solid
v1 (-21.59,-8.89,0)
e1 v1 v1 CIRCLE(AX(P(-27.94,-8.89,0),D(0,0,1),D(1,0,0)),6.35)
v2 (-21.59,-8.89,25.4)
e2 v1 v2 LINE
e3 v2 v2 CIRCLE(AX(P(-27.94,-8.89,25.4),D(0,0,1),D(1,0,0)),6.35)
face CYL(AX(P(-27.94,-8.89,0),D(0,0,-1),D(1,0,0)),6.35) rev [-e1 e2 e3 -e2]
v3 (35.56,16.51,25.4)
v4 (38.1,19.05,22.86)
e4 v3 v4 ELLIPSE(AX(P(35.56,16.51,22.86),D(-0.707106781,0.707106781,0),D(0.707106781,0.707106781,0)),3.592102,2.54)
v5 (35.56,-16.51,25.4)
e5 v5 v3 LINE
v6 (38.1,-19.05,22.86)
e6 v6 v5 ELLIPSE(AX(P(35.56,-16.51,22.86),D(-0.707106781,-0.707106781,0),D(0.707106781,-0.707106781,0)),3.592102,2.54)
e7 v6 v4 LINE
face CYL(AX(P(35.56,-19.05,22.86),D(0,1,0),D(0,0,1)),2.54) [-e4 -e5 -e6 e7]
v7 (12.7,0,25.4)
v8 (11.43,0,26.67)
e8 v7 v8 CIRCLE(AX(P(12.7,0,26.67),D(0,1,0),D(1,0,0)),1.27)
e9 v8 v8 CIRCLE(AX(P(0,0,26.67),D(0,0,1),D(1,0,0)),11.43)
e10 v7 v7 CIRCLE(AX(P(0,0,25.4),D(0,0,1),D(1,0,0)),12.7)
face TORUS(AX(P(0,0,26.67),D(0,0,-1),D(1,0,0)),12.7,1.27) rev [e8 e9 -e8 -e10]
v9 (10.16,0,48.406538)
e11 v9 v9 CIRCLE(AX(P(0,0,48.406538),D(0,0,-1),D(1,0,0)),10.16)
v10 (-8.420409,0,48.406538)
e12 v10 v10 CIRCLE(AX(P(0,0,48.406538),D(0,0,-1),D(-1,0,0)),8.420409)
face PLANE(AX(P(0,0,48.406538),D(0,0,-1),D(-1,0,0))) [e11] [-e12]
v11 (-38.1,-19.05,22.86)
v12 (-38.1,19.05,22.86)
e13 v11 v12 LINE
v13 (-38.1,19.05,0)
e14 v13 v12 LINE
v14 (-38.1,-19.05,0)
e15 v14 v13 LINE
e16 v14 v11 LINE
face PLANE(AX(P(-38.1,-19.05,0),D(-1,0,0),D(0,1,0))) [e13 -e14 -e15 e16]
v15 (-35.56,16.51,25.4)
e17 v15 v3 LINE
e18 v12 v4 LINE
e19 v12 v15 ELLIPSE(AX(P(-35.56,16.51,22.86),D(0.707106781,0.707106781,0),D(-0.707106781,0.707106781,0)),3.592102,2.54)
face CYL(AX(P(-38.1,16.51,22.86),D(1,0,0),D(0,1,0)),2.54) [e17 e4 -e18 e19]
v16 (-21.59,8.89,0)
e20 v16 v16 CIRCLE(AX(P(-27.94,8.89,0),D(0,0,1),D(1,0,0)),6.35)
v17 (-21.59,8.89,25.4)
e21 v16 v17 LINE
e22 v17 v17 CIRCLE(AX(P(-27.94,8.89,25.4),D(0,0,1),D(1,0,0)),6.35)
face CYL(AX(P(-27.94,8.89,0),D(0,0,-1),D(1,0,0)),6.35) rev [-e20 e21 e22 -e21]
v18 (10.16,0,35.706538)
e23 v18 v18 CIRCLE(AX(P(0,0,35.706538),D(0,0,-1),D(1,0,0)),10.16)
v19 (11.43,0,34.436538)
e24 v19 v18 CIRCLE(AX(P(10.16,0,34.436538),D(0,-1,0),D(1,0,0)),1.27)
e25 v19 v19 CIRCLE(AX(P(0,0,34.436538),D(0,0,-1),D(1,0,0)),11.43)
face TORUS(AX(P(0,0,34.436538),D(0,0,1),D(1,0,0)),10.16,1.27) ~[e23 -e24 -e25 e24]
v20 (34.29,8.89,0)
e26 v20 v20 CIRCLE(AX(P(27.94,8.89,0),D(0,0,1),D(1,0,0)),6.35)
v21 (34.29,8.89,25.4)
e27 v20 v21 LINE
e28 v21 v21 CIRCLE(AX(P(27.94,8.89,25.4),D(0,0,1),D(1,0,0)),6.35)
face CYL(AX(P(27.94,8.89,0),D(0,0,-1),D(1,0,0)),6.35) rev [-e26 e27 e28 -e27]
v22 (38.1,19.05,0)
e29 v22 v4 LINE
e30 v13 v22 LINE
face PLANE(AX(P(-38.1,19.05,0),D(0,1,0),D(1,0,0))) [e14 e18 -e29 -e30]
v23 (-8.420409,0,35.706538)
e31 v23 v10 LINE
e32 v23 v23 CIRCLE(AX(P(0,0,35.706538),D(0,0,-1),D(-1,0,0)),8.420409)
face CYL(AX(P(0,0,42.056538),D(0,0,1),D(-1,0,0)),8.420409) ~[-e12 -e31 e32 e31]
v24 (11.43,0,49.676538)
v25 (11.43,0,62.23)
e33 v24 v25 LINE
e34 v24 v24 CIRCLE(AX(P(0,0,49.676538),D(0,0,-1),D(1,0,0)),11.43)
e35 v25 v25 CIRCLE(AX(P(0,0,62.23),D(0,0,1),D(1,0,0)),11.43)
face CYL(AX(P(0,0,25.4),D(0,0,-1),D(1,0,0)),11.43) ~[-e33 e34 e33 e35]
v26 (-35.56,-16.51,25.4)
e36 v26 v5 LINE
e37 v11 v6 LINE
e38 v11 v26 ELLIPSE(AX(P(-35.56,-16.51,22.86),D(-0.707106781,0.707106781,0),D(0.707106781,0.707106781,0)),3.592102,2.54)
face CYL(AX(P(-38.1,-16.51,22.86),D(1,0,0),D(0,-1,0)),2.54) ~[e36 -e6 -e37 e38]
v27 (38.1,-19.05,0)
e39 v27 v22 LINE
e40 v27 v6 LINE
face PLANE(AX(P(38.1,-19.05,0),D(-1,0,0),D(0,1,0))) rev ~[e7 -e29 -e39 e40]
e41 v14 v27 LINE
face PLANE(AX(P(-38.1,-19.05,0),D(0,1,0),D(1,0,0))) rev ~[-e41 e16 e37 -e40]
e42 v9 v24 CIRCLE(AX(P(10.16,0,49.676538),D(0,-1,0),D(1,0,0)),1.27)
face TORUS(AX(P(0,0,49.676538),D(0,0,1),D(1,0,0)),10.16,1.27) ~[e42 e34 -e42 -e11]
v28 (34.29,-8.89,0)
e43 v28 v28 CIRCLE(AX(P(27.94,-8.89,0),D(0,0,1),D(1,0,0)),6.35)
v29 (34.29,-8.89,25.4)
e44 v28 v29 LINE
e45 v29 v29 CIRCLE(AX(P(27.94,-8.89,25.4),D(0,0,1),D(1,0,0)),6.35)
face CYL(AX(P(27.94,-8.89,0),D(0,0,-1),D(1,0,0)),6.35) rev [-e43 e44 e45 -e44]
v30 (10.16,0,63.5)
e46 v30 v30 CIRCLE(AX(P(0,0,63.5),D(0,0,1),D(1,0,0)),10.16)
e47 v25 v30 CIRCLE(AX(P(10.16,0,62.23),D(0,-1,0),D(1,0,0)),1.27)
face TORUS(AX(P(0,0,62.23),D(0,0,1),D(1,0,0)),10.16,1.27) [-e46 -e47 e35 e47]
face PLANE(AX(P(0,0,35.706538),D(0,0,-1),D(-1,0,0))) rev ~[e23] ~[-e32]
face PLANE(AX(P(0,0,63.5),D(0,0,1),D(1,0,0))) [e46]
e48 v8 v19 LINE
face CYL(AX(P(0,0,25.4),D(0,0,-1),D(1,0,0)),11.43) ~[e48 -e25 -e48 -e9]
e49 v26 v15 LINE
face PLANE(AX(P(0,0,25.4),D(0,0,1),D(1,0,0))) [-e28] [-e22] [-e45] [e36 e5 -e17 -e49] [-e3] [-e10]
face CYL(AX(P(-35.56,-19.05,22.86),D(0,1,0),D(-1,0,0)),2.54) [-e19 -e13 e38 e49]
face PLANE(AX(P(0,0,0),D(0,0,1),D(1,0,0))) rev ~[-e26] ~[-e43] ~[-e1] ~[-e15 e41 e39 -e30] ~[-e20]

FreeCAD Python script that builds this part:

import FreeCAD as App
import Part
import Sketcher

V = App.Vector
Q = App.Units.Quantity


def edges_at(feature, points):
    """Names of the edges that pass closest to the given points."""
    edges = feature.Shape.Edges
    near = lambda p: min(range(len(edges)), key=lambda i: edges[i].distToShape(Part.Vertex(*p))[0])
    return sorted({f"Edge{near(p) + 1}" for p in points})

doc = App.newDocument("Part")
params = doc.addObject("Spreadsheet::Sheet", "Params")
for row, (alias, value) in enumerate([
    ("sketch1_width", "3 in"),
    ("sketch1_height", "1.5 in"),
    ("pad1_length", "1 in"),
    ("sketch2_diameter", "0.5 in"),
    ("pocket1_length", "1 in"),
    ("sketch3_diameter", "0.9 in"),
    ("pad2_length", "1.5 in"),
    ("sketch4_width", "0.6 in"),
    ("sketch4_height", "0.5 in"),
    ("groove_angle", "360 deg"),
    ("fillet_radius", "0.1 in"),
    ("fillet2_radius", "0.05 in"),
], start=1):
    params.set(f"A{row}", alias)
    params.set(f"B{row}", "=" + value)
    params.setAlias(f"B{row}", alias)

body = doc.addObject("PartDesign::Body", "Body")

sketch1 = body.newObject("Sketcher::SketchObject", "Sketch")
sketch1.AttachmentSupport = (doc.getObject("XY_Plane"), [""])
sketch1.MapMode = "FlatFace"
sketch1.addGeometry(Part.LineSegment(V(-38, 19, 0), V(-38, -19, 0)), False)
sketch1.addGeometry(Part.LineSegment(V(-38, -19, 0), V(38, -19, 0)), False)
sketch1.addGeometry(Part.LineSegment(V(38, -19, 0), V(38, 19, 0)), False)
sketch1.addGeometry(Part.LineSegment(V(38, 19, 0), V(-38, 19, 0)), False)
sketch1.addConstraint(Sketcher.Constraint("Coincident", 0, 2, 1, 1))
sketch1.addConstraint(Sketcher.Constraint("Coincident", 1, 2, 2, 1))
sketch1.addConstraint(Sketcher.Constraint("Coincident", 2, 2, 3, 1))
sketch1.addConstraint(Sketcher.Constraint("Coincident", 3, 2, 0, 1))
sketch1.addConstraint(Sketcher.Constraint("Vertical", 0))
sketch1.addConstraint(Sketcher.Constraint("Horizontal", 1))
sketch1.addConstraint(Sketcher.Constraint("Vertical", 2))
sketch1.addConstraint(Sketcher.Constraint("Horizontal", 3))
sketch1.addConstraint(Sketcher.Constraint("Symmetric", 0, 2, 2, 2, -1, 1))
sketch1.addConstraint(Sketcher.Constraint("DistanceX", 1, 1, 1, 2, Q("3 in")))
sketch1.addConstraint(Sketcher.Constraint("DistanceY", 0, 2, 0, 1, Q("1.5 in")))
sketch1.setExpression("Constraints[9]", "Params.sketch1_width")
sketch1.setExpression("Constraints[10]", "Params.sketch1_height")
pad1 = body.newObject("PartDesign::Pad", "Pad")
pad1.Profile = sketch1
pad1.setExpression("Length", "Params.pad1_length")

sketch2 = body.newObject("Sketcher::SketchObject", "Sketch001")
sketch2.AttachmentSupport = (doc.getObject("XY_Plane"), [""])
sketch2.MapMode = "FlatFace"
sketch2.addGeometry(Part.Circle(V(-28, 9, 0), V(0, 0, 1), 6), False)
sketch2.addGeometry(Part.Circle(V(28, 9, 0), V(0, 0, 1), 6), False)
sketch2.addGeometry(Part.Circle(V(-28, -9, 0), V(0, 0, 1), 6), False)
sketch2.addGeometry(Part.Circle(V(28, -9, 0), V(0, 0, 1), 6), False)
sketch2.addConstraint(Sketcher.Constraint("Equal", 0, 1))
sketch2.addConstraint(Sketcher.Constraint("Equal", 1, 2))
sketch2.addConstraint(Sketcher.Constraint("Equal", 2, 3))
sketch2.addConstraint(Sketcher.Constraint("Symmetric", 1, 3, 2, 3, -1, 1))
sketch2.addConstraint(Sketcher.Constraint("Symmetric", 0, 3, 3, 3, -1, 1))
sketch2.addConstraint(Sketcher.Constraint("Symmetric", 0, 3, 1, 3, -2))
sketch2.addConstraint(Sketcher.Constraint("Diameter", 0, Q("0.5 in")))
sketch2.addConstraint(Sketcher.Constraint("DistanceX", 0, 3, -1, 1, Q("1.1 in")))
sketch2.addConstraint(Sketcher.Constraint("DistanceY", 2, 3, 0, 3, Q("0.7 in")))
sketch2.setExpression("Constraints[6]", "Params.sketch2_diameter")
pocket1 = body.newObject("PartDesign::Pocket", "Pocket")
pocket1.Profile = sketch2
pocket1.setExpression("Length", "Params.pocket1_length")
pocket1.Reversed = True

sketch3 = body.newObject("Sketcher::SketchObject", "Sketch002")
sketch3.AttachmentSupport = (doc.getObject("XY_Plane"), [""])
sketch3.MapMode = "FlatFace"
sketch3.AttachmentOffset = App.Placement(V(0, 0, 1 * 25.4), App.Rotation())
sketch3.addGeometry(Part.Circle(V(0, 0, 0), V(0, 0, 1), 11), False)
sketch3.addConstraint(Sketcher.Constraint("Coincident", 0, 3, -1, 1))
sketch3.addConstraint(Sketcher.Constraint("Diameter", 0, Q("0.9 in")))
sketch3.setExpression("Constraints[1]", "Params.sketch3_diameter")
pad2 = body.newObject("PartDesign::Pad", "Pad001")
pad2.Profile = sketch3
pad2.setExpression("Length", "Params.pad2_length")

sketch4 = body.newObject("Sketcher::SketchObject", "Sketch003")
sketch4.AttachmentSupport = (doc.getObject("XZ_Plane"), [""])
sketch4.MapMode = "FlatFace"
sketch4.addGeometry(Part.LineSegment(V(-24, 48, 0), V(-24, 36, 0)), False)
sketch4.addGeometry(Part.LineSegment(V(-24, 36, 0), V(-8, 36, 0)), False)
sketch4.addGeometry(Part.LineSegment(V(-8, 36, 0), V(-8, 48, 0)), False)
sketch4.addGeometry(Part.LineSegment(V(-8, 48, 0), V(-24, 48, 0)), False)
sketch4.addConstraint(Sketcher.Constraint("Coincident", 0, 2, 1, 1))
sketch4.addConstraint(Sketcher.Constraint("Coincident", 1, 2, 2, 1))
sketch4.addConstraint(Sketcher.Constraint("Coincident", 2, 2, 3, 1))
sketch4.addConstraint(Sketcher.Constraint("Coincident", 3, 2, 0, 1))
sketch4.addConstraint(Sketcher.Constraint("Vertical", 0))
sketch4.addConstraint(Sketcher.Constraint("Horizontal", 1))
sketch4.addConstraint(Sketcher.Constraint("Vertical", 2))
sketch4.addConstraint(Sketcher.Constraint("Horizontal", 3))
sketch4.addConstraint(Sketcher.Constraint("DistanceX", 1, 1, 1, 2, Q("0.6 in")))
sketch4.addConstraint(Sketcher.Constraint("DistanceY", 0, 2, 0, 1, Q("0.5 in")))
sketch4.addConstraint(Sketcher.Constraint("DistanceX", 0, 2, -1, 1, Q("23.660409 mm")))
sketch4.addConstraint(Sketcher.Constraint("DistanceY", -1, 1, 0, 2, Q("35.706538 mm")))
sketch4.setExpression("Constraints[8]", "Params.sketch4_width")
sketch4.setExpression("Constraints[9]", "Params.sketch4_height")
groove = body.newObject("PartDesign::Groove", "Groove")
groove.Profile = sketch4
groove.ReferenceAxis = (sketch4, ["V_Axis"])
groove.setExpression("Angle", "Params.groove_angle")
doc.recompute()

fillet = body.newObject("PartDesign::Fillet", "Fillet")
fillet.Base = (groove, edges_at(groove, [
    (-38.1, 0, 25.4),
    (0, -19.05, 25.4),
    (38.1, 0, 25.4),
    (0, 19.05, 25.4),
]))
fillet.setExpression("Radius", "Params.fillet_radius")
doc.recompute()

fillet2 = body.newObject("PartDesign::Fillet", "Fillet001")
fillet2.Base = (fillet, edges_at(fillet, [
    (-11.43, 0, 63.5),
    (-11.43, 0, 35.707),
    (-11.43, 0, 48.407),
    (-11.43, 0, 25.4),
]))
fillet2.setExpression("Radius", "Params.fillet2_radius")

doc.recompute()
